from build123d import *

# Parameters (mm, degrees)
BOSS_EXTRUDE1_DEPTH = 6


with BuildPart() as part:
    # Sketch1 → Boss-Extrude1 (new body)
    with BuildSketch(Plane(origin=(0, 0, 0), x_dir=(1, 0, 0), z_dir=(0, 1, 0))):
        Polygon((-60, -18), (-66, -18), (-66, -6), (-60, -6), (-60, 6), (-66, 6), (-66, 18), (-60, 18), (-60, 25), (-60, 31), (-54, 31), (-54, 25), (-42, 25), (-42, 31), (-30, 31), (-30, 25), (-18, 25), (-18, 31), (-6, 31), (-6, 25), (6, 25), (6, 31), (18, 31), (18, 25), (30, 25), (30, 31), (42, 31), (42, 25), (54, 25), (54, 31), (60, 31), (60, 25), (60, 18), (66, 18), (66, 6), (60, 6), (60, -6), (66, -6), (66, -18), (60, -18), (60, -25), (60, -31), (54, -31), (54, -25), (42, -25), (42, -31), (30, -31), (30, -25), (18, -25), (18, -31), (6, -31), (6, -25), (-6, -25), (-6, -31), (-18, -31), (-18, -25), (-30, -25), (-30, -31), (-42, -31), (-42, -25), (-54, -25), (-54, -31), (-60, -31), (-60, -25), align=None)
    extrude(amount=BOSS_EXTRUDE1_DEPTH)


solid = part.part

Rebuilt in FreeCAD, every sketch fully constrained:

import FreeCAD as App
import Part
import Sketcher
Q = App.Units.Quantity

doc = App.newDocument("Part")
body = doc.addObject("PartDesign::Body", "Body")

# Sketch on XZ plane
sketch1 = body.newObject("Sketcher::SketchObject", "Sketch")
sketch1.AttachmentSupport = (doc.getObject("XZ_Plane"), [""])
sketch1.MapMode = "FlatFace"
sketch1.addGeometry(Part.LineSegment(App.Vector(-66, 18, 0), App.Vector(-60, 18, 0)), False)
sketch1.addGeometry(Part.LineSegment(App.Vector(-60, 18, 0), App.Vector(-60, 31, 0)), False)
sketch1.addGeometry(Part.LineSegment(App.Vector(-60, 31, 0), App.Vector(-54, 31, 0)), False)
sketch1.addGeometry(Part.LineSegment(App.Vector(-54, 31, 0), App.Vector(-54, 25, 0)), False)
sketch1.addGeometry(Part.LineSegment(App.Vector(-54, 25, 0), App.Vector(-42, 25, 0)), False)
sketch1.addGeometry(Part.LineSegment(App.Vector(-42, 25, 0), App.Vector(-42, 31, 0)), False)
sketch1.addGeometry(Part.LineSegment(App.Vector(-42, 31, 0), App.Vector(-30, 31, 0)), False)
sketch1.addGeometry(Part.LineSegment(App.Vector(-30, 31, 0), App.Vector(-30, 25, 0)), False)
sketch1.addGeometry(Part.LineSegment(App.Vector(-30, 25, 0), App.Vector(-18, 25, 0)), False)
sketch1.addGeometry(Part.LineSegment(App.Vector(-18, 25, 0), App.Vector(-18, 31, 0)), False)
sketch1.addGeometry(Part.LineSegment(App.Vector(-18, 31, 0), App.Vector(-6, 31, 0)), False)
sketch1.addGeometry(Part.LineSegment(App.Vector(-6, 31, 0), App.Vector(-6, 25, 0)), False)
sketch1.addGeometry(Part.LineSegment(App.Vector(-6, 25, 0), App.Vector(6, 25, 0)), False)
sketch1.addGeometry(Part.LineSegment(App.Vector(6, 25, 0), App.Vector(6, 31, 0)), False)
sketch1.addGeometry(Part.LineSegment(App.Vector(6, 31, 0), App.Vector(18, 31, 0)), False)
sketch1.addGeometry(Part.LineSegment(App.Vector(18, 31, 0), App.Vector(18, 25, 0)), False)
sketch1.addGeometry(Part.LineSegment(App.Vector(18, 25, 0), App.Vector(30, 25, 0)), False)
sketch1.addGeometry(Part.LineSegment(App.Vector(30, 25, 0), App.Vector(30, 31, 0)), False)
sketch1.addGeometry(Part.LineSegment(App.Vector(30, 31, 0), App.Vector(42, 31, 0)), False)
sketch1.addGeometry(Part.LineSegment(App.Vector(42, 31, 0), App.Vector(42, 25, 0)), False)
sketch1.addGeometry(Part.LineSegment(App.Vector(42, 25, 0), App.Vector(54, 25, 0)), False)
sketch1.addGeometry(Part.LineSegment(App.Vector(54, 25, 0), App.Vector(54, 31, 0)), False)
sketch1.addGeometry(Part.LineSegment(App.Vector(54, 31, 0), App.Vector(60, 31, 0)), False)
sketch1.addGeometry(Part.LineSegment(App.Vector(60, 31, 0), App.Vector(60, 18, 0)), False)
sketch1.addGeometry(Part.LineSegment(App.Vector(60, 18, 0), App.Vector(66, 18, 0)), False)
sketch1.addGeometry(Part.LineSegment(App.Vector(66, 18, 0), App.Vector(66, 6, 0)), False)
sketch1.addGeometry(Part.LineSegment(App.Vector(66, 6, 0), App.Vector(60, 6, 0)), False)
sketch1.addGeometry(Part.LineSegment(App.Vector(60, 6, 0), App.Vector(60, -6, 0)), False)
sketch1.addGeometry(Part.LineSegment(App.Vector(60, -6, 0), App.Vector(66, -6, 0)), False)
sketch1.addGeometry(Part.LineSegment(App.Vector(66, -6, 0), App.Vector(66, -18, 0)), False)
sketch1.addGeometry(Part.LineSegment(App.Vector(66, -18, 0), App.Vector(60, -18, 0)), False)
sketch1.addGeometry(Part.LineSegment(App.Vector(60, -18, 0), App.Vector(60, -31, 0)), False)
sketch1.addGeometry(Part.LineSegment(App.Vector(60, -31, 0), App.Vector(54, -31, 0)), False)
sketch1.addGeometry(Part.LineSegment(App.Vector(54, -31, 0), App.Vector(54, -25, 0)), False)
sketch1.addGeometry(Part.LineSegment(App.Vector(54, -25, 0), App.Vector(42, -25, 0)), False)
sketch1.addGeometry(Part.LineSegment(App.Vector(42, -25, 0), App.Vector(42, -31, 0)), False)
sketch1.addGeometry(Part.LineSegment(App.Vector(42, -31, 0), App.Vector(30, -31, 0)), False)
sketch1.addGeometry(Part.LineSegment(App.Vector(30, -31, 0), App.Vector(30, -25, 0)), False)
sketch1.addGeometry(Part.LineSegment(App.Vector(30, -25, 0), App.Vector(18, -25, 0)), False)
sketch1.addGeometry(Part.LineSegment(App.Vector(18, -25, 0), App.Vector(18, -31, 0)), False)
sketch1.addGeometry(Part.LineSegment(App.Vector(18, -31, 0), App.Vector(6, -31, 0)), False)
sketch1.addGeometry(Part.LineSegment(App.Vector(6, -31, 0), App.Vector(6, -25, 0)), False)
sketch1.addGeometry(Part.LineSegment(App.Vector(6, -25, 0), App.Vector(-6, -25, 0)), False)
sketch1.addGeometry(Part.LineSegment(App.Vector(-6, -25, 0), App.Vector(-6, -31, 0)), False)
sketch1.addGeometry(Part.LineSegment(App.Vector(-6, -31, 0), App.Vector(-18, -31, 0)), False)
sketch1.addGeometry(Part.LineSegment(App.Vector(-18, -31, 0), App.Vector(-18, -25, 0)), False)
sketch1.addGeometry(Part.LineSegment(App.Vector(-18, -25, 0), App.Vector(-30, -25, 0)), False)
sketch1.addGeometry(Part.LineSegment(App.Vector(-30, -25, 0), App.Vector(-30, -31, 0)), False)
sketch1.addGeometry(Part.LineSegment(App.Vector(-30, -31, 0), App.Vector(-42, -31, 0)), False)
sketch1.addGeometry(Part.LineSegment(App.Vector(-42, -31, 0), App.Vector(-42, -25, 0)), False)
sketch1.addGeometry(Part.LineSegment(App.Vector(-42, -25, 0), App.Vector(-54, -25, 0)), False)
sketch1.addGeometry(Part.LineSegment(App.Vector(-54, -25, 0), App.Vector(-54, -31, 0)), False)
sketch1.addGeometry(Part.LineSegment(App.Vector(-54, -31, 0), App.Vector(-60, -31, 0)), False)
sketch1.addGeometry(Part.LineSegment(App.Vector(-60, -31, 0), App.Vector(-60, -18, 0)), False)
sketch1.addGeometry(Part.LineSegment(App.Vector(-60, -18, 0), App.Vector(-66, -18, 0)), False)
sketch1.addGeometry(Part.LineSegment(App.Vector(-66, -18, 0), App.Vector(-66, -6, 0)), False)
sketch1.addGeometry(Part.LineSegment(App.Vector(-66, -6, 0), App.Vector(-60, -6, 0)), False)
sketch1.addGeometry(Part.LineSegment(App.Vector(-60, -6, 0), App.Vector(-60, 6, 0)), False)
sketch1.addGeometry(Part.LineSegment(App.Vector(-60, 6, 0), App.Vector(-66, 6, 0)), False)
sketch1.addGeometry(Part.LineSegment(App.Vector(-66, 6, 0), App.Vector(-66, 18, 0)), False)
sketch1.addConstraint(Sketcher.Constraint("Coincident", 0, 2, 1, 1))
sketch1.addConstraint(Sketcher.Constraint("Coincident", 1, 2, 2, 1))
sketch1.addConstraint(Sketcher.Constraint("Coincident", 2, 2, 3, 1))
sketch1.addConstraint(Sketcher.Constraint("Coincident", 3, 2, 4, 1))
sketch1.addConstraint(Sketcher.Constraint("Coincident", 4, 2, 5, 1))
sketch1.addConstraint(Sketcher.Constraint("Coincident", 5, 2, 6, 1))
sketch1.addConstraint(Sketcher.Constraint("Coincident", 6, 2, 7, 1))
sketch1.addConstraint(Sketcher.Constraint("Coincident", 7, 2, 8, 1))
sketch1.addConstraint(Sketcher.Constraint("Coincident", 8, 2, 9, 1))
sketch1.addConstraint(Sketcher.Constraint("Coincident", 9, 2, 10, 1))
sketch1.addConstraint(Sketcher.Constraint("Coincident", 10, 2, 11, 1))
sketch1.addConstraint(Sketcher.Constraint("Coincident", 11, 2, 12, 1))
sketch1.addConstraint(Sketcher.Constraint("Coincident", 12, 2, 13, 1))
sketch1.addConstraint(Sketcher.Constraint("Coincident", 13, 2, 14, 1))
sketch1.addConstraint(Sketcher.Constraint("Coincident", 14, 2, 15, 1))
sketch1.addConstraint(Sketcher.Constraint("Coincident", 15, 2, 16, 1))
sketch1.addConstraint(Sketcher.Constraint("Coincident", 16, 2, 17, 1))
sketch1.addConstraint(Sketcher.Constraint("Coincident", 17, 2, 18, 1))
sketch1.addConstraint(Sketcher.Constraint("Coincident", 18, 2, 19, 1))
sketch1.addConstraint(Sketcher.Constraint("Coincident", 19, 2, 20, 1))
sketch1.addConstraint(Sketcher.Constraint("Coincident", 20, 2, 21, 1))
sketch1.addConstraint(Sketcher.Constraint("Coincident", 21, 2, 22, 1))
sketch1.addConstraint(Sketcher.Constraint("Coincident", 22, 2, 23, 1))
sketch1.addConstraint(Sketcher.Constraint("Coincident", 23, 2, 24, 1))
sketch1.addConstraint(Sketcher.Constraint("Coincident", 24, 2, 25, 1))
sketch1.addConstraint(Sketcher.Constraint("Coincident", 25, 2, 26, 1))
sketch1.addConstraint(Sketcher.Constraint("Coincident", 26, 2, 27, 1))
sketch1.addConstraint(Sketcher.Constraint("Coincident", 27, 2, 28, 1))
sketch1.addConstraint(Sketcher.Constraint("Coincident", 28, 2, 29, 1))
sketch1.addConstraint(Sketcher.Constraint("Coincident", 29, 2, 30, 1))
sketch1.addConstraint(Sketcher.Constraint("Coincident", 30, 2, 31, 1))
sketch1.addConstraint(Sketcher.Constraint("Coincident", 31, 2, 32, 1))
sketch1.addConstraint(Sketcher.Constraint("Coincident", 32, 2, 33, 1))
sketch1.addConstraint(Sketcher.Constraint("Coincident", 33, 2, 34, 1))
sketch1.addConstraint(Sketcher.Constraint("Coincident", 34, 2, 35, 1))
sketch1.addConstraint(Sketcher.Constraint("Coincident", 35, 2, 36, 1))
sketch1.addConstraint(Sketcher.Constraint("Coincident", 36, 2, 37, 1))
sketch1.addConstraint(Sketcher.Constraint("Coincident", 37, 2, 38, 1))
sketch1.addConstraint(Sketcher.Constraint("Coincident", 38, 2, 39, 1))
sketch1.addConstraint(Sketcher.Constraint("Coincident", 39, 2, 40, 1))
sketch1.addConstraint(Sketcher.Constraint("Coincident", 40, 2, 41, 1))
sketch1.addConstraint(Sketcher.Constraint("Coincident", 41, 2, 42, 1))
sketch1.addConstraint(Sketcher.Constraint("Coincident", 42, 2, 43, 1))
sketch1.addConstraint(Sketcher.Constraint("Coincident", 43, 2, 44, 1))
sketch1.addConstraint(Sketcher.Constraint("Coincident", 44, 2, 45, 1))
sketch1.addConstraint(Sketcher.Constraint("Coincident", 45, 2, 46, 1))
sketch1.addConstraint(Sketcher.Constraint("Coincident", 46, 2, 47, 1))
sketch1.addConstraint(Sketcher.Constraint("Coincident", 47, 2, 48, 1))
sketch1.addConstraint(Sketcher.Constraint("Coincident", 48, 2, 49, 1))
sketch1.addConstraint(Sketcher.Constraint("Coincident", 49, 2, 50, 1))
sketch1.addConstraint(Sketcher.Constraint("Coincident", 50, 2, 51, 1))
sketch1.addConstraint(Sketcher.Constraint("Coincident", 51, 2, 52, 1))
sketch1.addConstraint(Sketcher.Constraint("Coincident", 52, 2, 53, 1))
sketch1.addConstraint(Sketcher.Constraint("Coincident", 53, 2, 54, 1))
sketch1.addConstraint(Sketcher.Constraint("Coincident", 54, 2, 55, 1))
sketch1.addConstraint(Sketcher.Constraint("Coincident", 55, 2, 56, 1))
sketch1.addConstraint(Sketcher.Constraint("Coincident", 56, 2, 57, 1))
sketch1.addConstraint(Sketcher.Constraint("Coincident", 57, 2, 58, 1))
sketch1.addConstraint(Sketcher.Constraint("Coincident", 58, 2, 59, 1))
sketch1.addConstraint(Sketcher.Constraint("Coincident", 59, 2, 0, 1))
sketch1.addConstraint(Sketcher.Constraint("Horizontal", 0))
sketch1.addConstraint(Sketcher.Constraint("Vertical", 1))
sketch1.addConstraint(Sketcher.Constraint("Horizontal", 2))
sketch1.addConstraint(Sketcher.Constraint("Vertical", 3))
sketch1.addConstraint(Sketcher.Constraint("Horizontal", 4))
sketch1.addConstraint(Sketcher.Constraint("Vertical", 5))
sketch1.addConstraint(Sketcher.Constraint("Horizontal", 6))
sketch1.addConstraint(Sketcher.Constraint("Vertical", 7))
sketch1.addConstraint(Sketcher.Constraint("Horizontal", 8))
sketch1.addConstraint(Sketcher.Constraint("Vertical", 9))
sketch1.addConstraint(Sketcher.Constraint("Horizontal", 10))
sketch1.addConstraint(Sketcher.Constraint("Vertical", 11))
sketch1.addConstraint(Sketcher.Constraint("Horizontal", 12))
sketch1.addConstraint(Sketcher.Constraint("Vertical", 13))
sketch1.addConstraint(Sketcher.Constraint("Horizontal", 14))
sketch1.addConstraint(Sketcher.Constraint("Vertical", 15))
sketch1.addConstraint(Sketcher.Constraint("Horizontal", 16))
sketch1.addConstraint(Sketcher.Constraint("Vertical", 17))
sketch1.addConstraint(Sketcher.Constraint("Horizontal", 18))
sketch1.addConstraint(Sketcher.Constraint("Vertical", 19))
sketch1.addConstraint(Sketcher.Constraint("Horizontal", 20))
sketch1.addConstraint(Sketcher.Constraint("Vertical", 21))
sketch1.addConstraint(Sketcher.Constraint("Horizontal", 22))
sketch1.addConstraint(Sketcher.Constraint("Vertical", 23))
sketch1.addConstraint(Sketcher.Constraint("Horizontal", 24))
sketch1.addConstraint(Sketcher.Constraint("Vertical", 25))
sketch1.addConstraint(Sketcher.Constraint("Horizontal", 26))
sketch1.addConstraint(Sketcher.Constraint("Vertical", 27))
sketch1.addConstraint(Sketcher.Constraint("Horizontal", 28))
sketch1.addConstraint(Sketcher.Constraint("Vertical", 29))
sketch1.addConstraint(Sketcher.Constraint("Horizontal", 30))
sketch1.addConstraint(Sketcher.Constraint("Vertical", 31))
sketch1.addConstraint(Sketcher.Constraint("Horizontal", 32))
sketch1.addConstraint(Sketcher.Constraint("Vertical", 33))
sketch1.addConstraint(Sketcher.Constraint("Horizontal", 34))
sketch1.addConstraint(Sketcher.Constraint("Vertical", 35))
sketch1.addConstraint(Sketcher.Constraint("Horizontal", 36))
sketch1.addConstraint(Sketcher.Constraint("Vertical", 37))
sketch1.addConstraint(Sketcher.Constraint("Horizontal", 38))
sketch1.addConstraint(Sketcher.Constraint("Vertical", 39))
sketch1.addConstraint(Sketcher.Constraint("Horizontal", 40))
sketch1.addConstraint(Sketcher.Constraint("Vertical", 41))
sketch1.addConstraint(Sketcher.Constraint("Horizontal", 42))
sketch1.addConstraint(Sketcher.Constraint("Vertical", 43))
sketch1.addConstraint(Sketcher.Constraint("Horizontal", 44))
sketch1.addConstraint(Sketcher.Constraint("Vertical", 45))
sketch1.addConstraint(Sketcher.Constraint("Horizontal", 46))
sketch1.addConstraint(Sketcher.Constraint("Vertical", 47))
sketch1.addConstraint(Sketcher.Constraint("Horizontal", 48))
sketch1.addConstraint(Sketcher.Constraint("Vertical", 49))
sketch1.addConstraint(Sketcher.Constraint("Horizontal", 50))
sketch1.addConstraint(Sketcher.Constraint("Vertical", 51))
sketch1.addConstraint(Sketcher.Constraint("Horizontal", 52))
sketch1.addConstraint(Sketcher.Constraint("Vertical", 53))
sketch1.addConstraint(Sketcher.Constraint("Horizontal", 54))
sketch1.addConstraint(Sketcher.Constraint("Vertical", 55))
sketch1.addConstraint(Sketcher.Constraint("Horizontal", 56))
sketch1.addConstraint(Sketcher.Constraint("Vertical", 57))
sketch1.addConstraint(Sketcher.Constraint("Horizontal", 58))
sketch1.addConstraint(Sketcher.Constraint("Vertical", 59))
sketch1.addConstraint(Sketcher.Constraint("Symmetric", 0, 2, 30, 2, -1, 1))
sketch1.addConstraint(Sketcher.Constraint("Symmetric", 2, 2, 32, 2, -1, 1))
sketch1.addConstraint(Sketcher.Constraint("Symmetric", 4, 2, 34, 2, -1, 1))
sketch1.addConstraint(Sketcher.Constraint("Symmetric", 6, 2, 36, 2, -1, 1))
sketch1.addConstraint(Sketcher.Constraint("Symmetric", 8, 2, 38, 2, -1, 1))
sketch1.addConstraint(Sketcher.Constraint("Symmetric", 10, 2, 40, 2, -1, 1))
sketch1.addConstraint(Sketcher.Constraint("Symmetric", 12, 2, 42, 2, -1, 1))
sketch1.addConstraint(Sketcher.Constraint("Symmetric", 14, 2, 44, 2, -1, 1))
sketch1.addConstraint(Sketcher.Constraint("Symmetric", 16, 2, 46, 2, -1, 1))
sketch1.addConstraint(Sketcher.Constraint("Symmetric", 18, 2, 48, 2, -1, 1))
sketch1.addConstraint(Sketcher.Constraint("Symmetric", 20, 2, 50, 2, -1, 1))
sketch1.addConstraint(Sketcher.Constraint("Symmetric", 22, 2, 52, 2, -1, 1))
sketch1.addConstraint(Sketcher.Constraint("Symmetric", 24, 2, 54, 2, -1, 1))
sketch1.addConstraint(Sketcher.Constraint("Symmetric", 26, 2, 56, 2, -1, 1))
sketch1.addConstraint(Sketcher.Constraint("Symmetric", 28, 2, 58, 2, -1, 1))
sketch1.addConstraint(Sketcher.Constraint("Symmetric", 10, 2, 13, 2, -2))
sketch1.addConstraint(Sketcher.Constraint("Symmetric", 8, 2, 15, 2, -2))
sketch1.addConstraint(Sketcher.Constraint("Symmetric", 6, 2, 17, 2, -2))
sketch1.addConstraint(Sketcher.Constraint("Symmetric", 4, 2, 19, 2, -2))
sketch1.addConstraint(Sketcher.Constraint("Symmetric", 2, 2, 21, 2, -2))
sketch1.addConstraint(Sketcher.Constraint("Symmetric", 0, 2, 23, 2, -2))
sketch1.addConstraint(Sketcher.Constraint("Symmetric", 28, 2, 55, 2, -2))
sketch1.addConstraint(Sketcher.Constraint("Horizontal", 2, 2, 5, 2))
sketch1.addConstraint(Sketcher.Constraint("Horizontal", 4, 2, 7, 2))
sketch1.addConstraint(Sketcher.Constraint("Horizontal", 6, 2, 9, 2))
sketch1.addConstraint(Sketcher.Constraint("Horizontal", 8, 2, 11, 2))
sketch1.addConstraint(Sketcher.Constraint("Vertical", 23, 2, 26, 2))
sketch1.addConstraint(Sketcher.Constraint("Equal", 0, 2))
sketch1.addConstraint(Sketcher.Constraint("Equal", 4, 6))
sketch1.addConstraint(Sketcher.Constraint("Equal", 6, 8))
sketch1.addConstraint(Sketcher.Constraint("Equal", 8, 10))
sketch1.addConstraint(Sketcher.Constraint("Equal", 10, 12))
sketch1.addConstraint(Sketcher.Constraint("Equal", 58, 3))
sketch1.addConstraint(Sketcher.Constraint("Equal", 50, 25))
sketch1.addConstraint(Sketcher.Constraint("Equal", 25, 27))
sketch1.addConstraint(Sketcher.Constraint("DistanceX", 0, 1, 0, 2, Q("6 mm")))
sketch1.addConstraint(Sketcher.Constraint("DistanceX", 4, 1, 4, 2, Q("12 mm")))
sketch1.addConstraint(Sketcher.Constraint("DistanceY", 1, 1, 1, 2, Q("13 mm")))
pad1 = body.newObject("PartDesign::Pad", "Pad")
pad1.Profile = sketch1
pad1.Length = 6
pad1.Reversed = True

doc.recompute()
